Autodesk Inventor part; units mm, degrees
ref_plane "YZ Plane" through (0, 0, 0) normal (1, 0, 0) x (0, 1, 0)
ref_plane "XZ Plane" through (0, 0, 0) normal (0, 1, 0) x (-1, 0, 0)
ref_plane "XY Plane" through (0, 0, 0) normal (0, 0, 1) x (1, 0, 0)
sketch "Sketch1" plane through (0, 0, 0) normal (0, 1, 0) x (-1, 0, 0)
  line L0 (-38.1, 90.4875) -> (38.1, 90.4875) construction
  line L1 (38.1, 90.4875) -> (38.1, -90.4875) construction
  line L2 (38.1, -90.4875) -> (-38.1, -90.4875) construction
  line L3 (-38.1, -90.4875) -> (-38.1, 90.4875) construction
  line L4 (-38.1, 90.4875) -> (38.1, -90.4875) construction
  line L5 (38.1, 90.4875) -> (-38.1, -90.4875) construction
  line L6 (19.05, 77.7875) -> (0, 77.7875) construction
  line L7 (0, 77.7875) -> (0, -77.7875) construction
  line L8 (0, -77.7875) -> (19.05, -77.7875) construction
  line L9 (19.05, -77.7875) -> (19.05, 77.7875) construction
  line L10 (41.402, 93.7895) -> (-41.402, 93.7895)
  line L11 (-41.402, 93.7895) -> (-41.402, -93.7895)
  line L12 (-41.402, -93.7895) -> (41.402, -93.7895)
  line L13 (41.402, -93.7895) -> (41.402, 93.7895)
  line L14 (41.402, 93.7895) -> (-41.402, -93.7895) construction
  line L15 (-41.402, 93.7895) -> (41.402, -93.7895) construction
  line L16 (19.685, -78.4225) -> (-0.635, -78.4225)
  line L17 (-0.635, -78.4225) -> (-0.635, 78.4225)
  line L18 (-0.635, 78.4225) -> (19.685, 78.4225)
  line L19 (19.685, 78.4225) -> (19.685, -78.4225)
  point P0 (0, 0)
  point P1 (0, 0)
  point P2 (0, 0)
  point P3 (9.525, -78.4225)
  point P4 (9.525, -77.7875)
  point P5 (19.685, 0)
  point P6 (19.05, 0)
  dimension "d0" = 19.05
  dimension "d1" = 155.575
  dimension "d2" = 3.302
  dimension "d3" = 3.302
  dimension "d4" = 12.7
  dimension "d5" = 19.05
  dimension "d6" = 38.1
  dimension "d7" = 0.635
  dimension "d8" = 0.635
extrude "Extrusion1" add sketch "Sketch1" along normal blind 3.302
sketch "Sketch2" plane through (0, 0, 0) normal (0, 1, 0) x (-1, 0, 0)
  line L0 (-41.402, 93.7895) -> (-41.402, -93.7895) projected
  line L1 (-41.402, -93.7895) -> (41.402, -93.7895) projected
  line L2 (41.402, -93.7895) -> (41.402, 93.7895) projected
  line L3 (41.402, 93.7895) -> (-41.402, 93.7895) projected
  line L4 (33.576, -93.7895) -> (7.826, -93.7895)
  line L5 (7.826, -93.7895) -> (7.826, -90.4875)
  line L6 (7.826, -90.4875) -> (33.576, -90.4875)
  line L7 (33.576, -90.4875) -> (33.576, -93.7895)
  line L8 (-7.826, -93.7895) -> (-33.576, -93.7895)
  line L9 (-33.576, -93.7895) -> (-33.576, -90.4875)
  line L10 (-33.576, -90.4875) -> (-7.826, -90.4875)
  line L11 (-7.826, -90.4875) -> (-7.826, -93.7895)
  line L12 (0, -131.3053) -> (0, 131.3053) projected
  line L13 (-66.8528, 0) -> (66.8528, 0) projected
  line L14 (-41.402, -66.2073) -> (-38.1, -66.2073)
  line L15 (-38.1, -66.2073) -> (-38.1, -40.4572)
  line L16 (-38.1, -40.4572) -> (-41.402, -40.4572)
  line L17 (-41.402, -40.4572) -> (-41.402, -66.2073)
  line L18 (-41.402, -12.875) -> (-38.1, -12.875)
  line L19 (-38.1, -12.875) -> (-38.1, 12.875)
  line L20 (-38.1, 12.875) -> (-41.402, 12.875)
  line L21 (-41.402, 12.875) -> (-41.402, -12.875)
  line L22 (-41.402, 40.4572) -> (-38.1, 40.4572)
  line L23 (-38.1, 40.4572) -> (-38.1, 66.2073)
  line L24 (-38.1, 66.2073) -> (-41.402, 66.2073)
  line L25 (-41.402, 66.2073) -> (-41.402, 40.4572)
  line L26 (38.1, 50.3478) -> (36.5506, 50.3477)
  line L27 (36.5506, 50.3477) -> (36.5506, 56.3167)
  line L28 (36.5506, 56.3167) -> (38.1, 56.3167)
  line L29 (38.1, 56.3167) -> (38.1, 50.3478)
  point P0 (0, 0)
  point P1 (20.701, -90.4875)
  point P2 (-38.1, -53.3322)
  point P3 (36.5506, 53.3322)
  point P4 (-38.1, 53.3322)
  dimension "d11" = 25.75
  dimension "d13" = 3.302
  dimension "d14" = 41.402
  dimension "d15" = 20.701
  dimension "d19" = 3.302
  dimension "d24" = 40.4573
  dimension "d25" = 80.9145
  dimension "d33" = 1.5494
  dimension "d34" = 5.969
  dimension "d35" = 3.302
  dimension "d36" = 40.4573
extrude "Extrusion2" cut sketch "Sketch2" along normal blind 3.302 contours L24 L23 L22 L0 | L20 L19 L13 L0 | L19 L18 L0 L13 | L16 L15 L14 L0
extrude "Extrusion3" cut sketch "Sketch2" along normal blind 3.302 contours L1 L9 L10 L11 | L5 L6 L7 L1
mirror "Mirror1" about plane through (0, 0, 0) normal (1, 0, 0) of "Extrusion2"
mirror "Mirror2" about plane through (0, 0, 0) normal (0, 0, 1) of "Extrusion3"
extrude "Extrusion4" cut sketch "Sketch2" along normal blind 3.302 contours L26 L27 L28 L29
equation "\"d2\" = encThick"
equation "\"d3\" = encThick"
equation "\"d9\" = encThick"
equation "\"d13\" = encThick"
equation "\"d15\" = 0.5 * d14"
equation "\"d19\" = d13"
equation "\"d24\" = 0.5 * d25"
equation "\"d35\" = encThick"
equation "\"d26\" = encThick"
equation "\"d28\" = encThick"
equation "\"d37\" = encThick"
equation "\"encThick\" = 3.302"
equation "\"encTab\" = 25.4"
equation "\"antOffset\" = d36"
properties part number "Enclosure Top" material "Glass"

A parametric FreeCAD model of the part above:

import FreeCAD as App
import Part
import Sketcher

V = App.Vector
Q = App.Units.Quantity


def add_polygon(sketch, points):
    """Adds a closed chain of lines whose ends are joined by coincident constraints."""
    first, n = sketch.GeometryCount, len(points)
    for a, b in zip(points, points[1:] + points[:1]):
        sketch.addGeometry(Part.LineSegment(App.Vector(*a, 0), App.Vector(*b, 0)), False)
    for i in range(n):
        sketch.addConstraint(Sketcher.Constraint("Coincident", first + i, 2, first + (i + 1) % n, 1))

doc = App.newDocument("Part")
body = doc.addObject("PartDesign::Body", "Body")

sketch1 = doc.addObject("Sketcher::SketchObject", "Sketch")
body.addObject(sketch1)
sketch1.AttachmentSupport = (doc.XZ_Plane, [""])
sketch1.MapMode = "FlatFace"
add_polygon(sketch1, [(-41.402, -93.7895), (-41.402, 93.7895), (41.402, 93.7895), (41.402, -93.7895)])
add_polygon(sketch1, [(-19.685, 78.4225), (-19.685, -78.4225), (0.635, -78.4225), (0.635, 78.4225)])
sketch1.addConstraint(Sketcher.Constraint("Vertical", 0))
sketch1.addConstraint(Sketcher.Constraint("Horizontal", 1))
sketch1.addConstraint(Sketcher.Constraint("Vertical", 2))
sketch1.addConstraint(Sketcher.Constraint("Horizontal", 3))
sketch1.addConstraint(Sketcher.Constraint("Vertical", 4))
sketch1.addConstraint(Sketcher.Constraint("Horizontal", 5))
sketch1.addConstraint(Sketcher.Constraint("Vertical", 6))
sketch1.addConstraint(Sketcher.Constraint("Horizontal", 7))
sketch1.addConstraint(Sketcher.Constraint("Symmetric", 0, 2, 2, 2, -1, 1))
sketch1.addConstraint(Sketcher.Constraint("DistanceX", 5, 1, 5, 2, Q("0.8 in")))
sketch1.addConstraint(Sketcher.Constraint("DistanceX", -1, 1, 5, 2, Q("0.025 in")))
sketch1.addConstraint(Sketcher.Constraint("DistanceX", 1, 1, 1, 2, Q("3.26 in")))
sketch1.addConstraint(Sketcher.Constraint("DistanceY", 0, 1, 0, 2, Q("7.385 in")))
sketch1.addConstraint(Sketcher.Constraint("DistanceY", 4, 2, 4, 1, Q("6.175 in")))
sketch1.addConstraint(Sketcher.Constraint("DistanceY", 4, 2, 0, 2, Q("6.78 in")))
pad1 = doc.addObject("PartDesign::Pad", "Pad")
body.addObject(pad1)
pad1.Profile = sketch1
pad1.Length = Q("0.13 in")
pad1.Reversed = True

sketch2 = doc.addObject("Sketcher::SketchObject", "Sketch001")
body.addObject(sketch2)
sketch2.AttachmentSupport = (doc.XZ_Plane, [""])
sketch2.MapMode = "FlatFace"
add_polygon(sketch2, [(38.1, 66.2073), (41.402, 66.2073), (41.402, 40.4572), (38.1, 40.4572)])
add_polygon(sketch2, [(38.1, 12.875), (41.402, 12.875), (41.402, -12.875), (38.1, -12.875)])
add_polygon(sketch2, [(38.1, -40.4572), (41.402, -40.4572), (41.402, -66.2073), (38.1, -66.2073)])
sketch2.addConstraint(Sketcher.Constraint("Horizontal", 0))
sketch2.addConstraint(Sketcher.Constraint("Vertical", 1))
sketch2.addConstraint(Sketcher.Constraint("Horizontal", 2))
sketch2.addConstraint(Sketcher.Constraint("Vertical", 3))
sketch2.addConstraint(Sketcher.Constraint("Horizontal", 4))
sketch2.addConstraint(Sketcher.Constraint("Vertical", 5))
sketch2.addConstraint(Sketcher.Constraint("Horizontal", 6))
sketch2.addConstraint(Sketcher.Constraint("Vertical", 7))
sketch2.addConstraint(Sketcher.Constraint("Horizontal", 8))
sketch2.addConstraint(Sketcher.Constraint("Vertical", 9))
sketch2.addConstraint(Sketcher.Constraint("Horizontal", 10))
sketch2.addConstraint(Sketcher.Constraint("Vertical", 11))
sketch2.addConstraint(Sketcher.Constraint("Symmetric", 1, 2, 8, 2, -1))
sketch2.addConstraint(Sketcher.Constraint("Symmetric", 3, 2, 10, 2, -1))
sketch2.addConstraint(Sketcher.Constraint("Vertical", 1, 2, 4, 2))
sketch2.addConstraint(Sketcher.Constraint("Vertical", 3, 2, 6, 2))
sketch2.addConstraint(Sketcher.Constraint("Equal", 3, 5))
sketch2.addConstraint(Sketcher.Constraint("DistanceX", 0, 1, 0, 2, Q("0.13 in")))
sketch2.addConstraint(Sketcher.Constraint("DistanceX", -1, 1, 0, 2, Q("1.63 in")))
sketch2.addConstraint(Sketcher.Constraint("DistanceY", 1, 2, 1, 1, 25.75))
sketch2.addConstraint(Sketcher.Constraint("DistanceY", -1, 1, 1, 2, Q("1.5928 in")))
sketch2.addConstraint(Sketcher.Constraint("DistanceY", -1, 1, 4, 2, Q("0.5069 in")))
pocket1 = doc.addObject("PartDesign::Pocket", "Pocket")
body.addObject(pocket1)
pocket1.Profile = sketch2
pocket1.Length = Q("0.13 in")

sketch3 = doc.addObject("Sketcher::SketchObject", "Sketch002")
body.addObject(sketch3)
sketch3.AttachmentSupport = (doc.XZ_Plane, [""])
sketch3.MapMode = "FlatFace"
add_polygon(sketch3, [(33.576, -93.7895), (7.826, -93.7895), (7.826, -90.4875), (33.576, -90.4875)])
add_polygon(sketch3, [(-7.826, -90.4875), (-7.826, -93.7895), (-33.576, -93.7895), (-33.576, -90.4875)])
sketch3.addConstraint(Sketcher.Constraint("Horizontal", 0))
sketch3.addConstraint(Sketcher.Constraint("Vertical", 1))
sketch3.addConstraint(Sketcher.Constraint("Horizontal", 2))
sketch3.addConstraint(Sketcher.Constraint("Vertical", 3))
sketch3.addConstraint(Sketcher.Constraint("Vertical", 4))
sketch3.addConstraint(Sketcher.Constraint("Horizontal", 5))
sketch3.addConstraint(Sketcher.Constraint("Vertical", 6))
sketch3.addConstraint(Sketcher.Constraint("Horizontal", 7))
sketch3.addConstraint(Sketcher.Constraint("Symmetric", 0, 2, 4, 2, -2))
sketch3.addConstraint(Sketcher.Constraint("Symmetric", 2, 2, 6, 2, -2))
sketch3.addConstraint(Sketcher.Constraint("DistanceY", 1, 1, 1, 2, Q("0.13 in")))
sketch3.addConstraint(Sketcher.Constraint("DistanceX", 4, 2, 3, 2, Q("1.63 in")))
sketch3.addConstraint(Sketcher.Constraint("DistanceX", 0, 2, 0, 1, 25.75))
sketch3.addConstraint(Sketcher.Constraint("DistanceY", 1, 2, -1, 1, Q("3.5625 in")))
pocket2 = doc.addObject("PartDesign::Pocket", "Pocket001")
body.addObject(pocket2)
pocket2.Profile = sketch3
pocket2.Length = Q("0.13 in")
doc.recompute()

mirrored = doc.addObject("PartDesign::Mirrored", "Mirrored")
body.addObject(mirrored)
mirrored.Originals = [pocket1]
mirrored.MirrorPlane = (doc.YZ_Plane, [""])
body.Tip = mirrored
doc.recompute()

mirrored2 = doc.addObject("PartDesign::Mirrored", "Mirrored001")
body.addObject(mirrored2)
mirrored2.Originals = [pocket2]
mirrored2.MirrorPlane = (doc.XY_Plane, [""])
body.Tip = mirrored2

sketch4 = doc.addObject("Sketcher::SketchObject", "Sketch003")
body.addObject(sketch4)
sketch4.AttachmentSupport = (doc.XZ_Plane, [""])
sketch4.MapMode = "FlatFace"
add_polygon(sketch4, [(-36.5506, 50.3477), (-38.1, 50.3478), (-38.1, 56.3167), (-36.5506, 56.3167)])
sketch4.addConstraint(Sketcher.Constraint("Horizontal", 0))
sketch4.addConstraint(Sketcher.Constraint("Vertical", 1))
sketch4.addConstraint(Sketcher.Constraint("Horizontal", 2))
sketch4.addConstraint(Sketcher.Constraint("Vertical", 3))
sketch4.addConstraint(Sketcher.Constraint("DistanceX", 0, 2, 0, 1, Q("0.061 in")))
sketch4.addConstraint(Sketcher.Constraint("DistanceY", 1, 1, 1, 2, Q("0.235 in")))
sketch4.addConstraint(Sketcher.Constraint("DistanceX", 0, 2, -1, 1, Q("1.5 in")))
sketch4.addConstraint(Sketcher.Constraint("DistanceY", -1, 1, 0, 2, Q("1.9822 in")))
pocket3 = doc.addObject("PartDesign::Pocket", "Pocket002")
body.addObject(pocket3)
pocket3.Profile = sketch4
pocket3.Length = Q("0.13 in")

doc.recompute()
